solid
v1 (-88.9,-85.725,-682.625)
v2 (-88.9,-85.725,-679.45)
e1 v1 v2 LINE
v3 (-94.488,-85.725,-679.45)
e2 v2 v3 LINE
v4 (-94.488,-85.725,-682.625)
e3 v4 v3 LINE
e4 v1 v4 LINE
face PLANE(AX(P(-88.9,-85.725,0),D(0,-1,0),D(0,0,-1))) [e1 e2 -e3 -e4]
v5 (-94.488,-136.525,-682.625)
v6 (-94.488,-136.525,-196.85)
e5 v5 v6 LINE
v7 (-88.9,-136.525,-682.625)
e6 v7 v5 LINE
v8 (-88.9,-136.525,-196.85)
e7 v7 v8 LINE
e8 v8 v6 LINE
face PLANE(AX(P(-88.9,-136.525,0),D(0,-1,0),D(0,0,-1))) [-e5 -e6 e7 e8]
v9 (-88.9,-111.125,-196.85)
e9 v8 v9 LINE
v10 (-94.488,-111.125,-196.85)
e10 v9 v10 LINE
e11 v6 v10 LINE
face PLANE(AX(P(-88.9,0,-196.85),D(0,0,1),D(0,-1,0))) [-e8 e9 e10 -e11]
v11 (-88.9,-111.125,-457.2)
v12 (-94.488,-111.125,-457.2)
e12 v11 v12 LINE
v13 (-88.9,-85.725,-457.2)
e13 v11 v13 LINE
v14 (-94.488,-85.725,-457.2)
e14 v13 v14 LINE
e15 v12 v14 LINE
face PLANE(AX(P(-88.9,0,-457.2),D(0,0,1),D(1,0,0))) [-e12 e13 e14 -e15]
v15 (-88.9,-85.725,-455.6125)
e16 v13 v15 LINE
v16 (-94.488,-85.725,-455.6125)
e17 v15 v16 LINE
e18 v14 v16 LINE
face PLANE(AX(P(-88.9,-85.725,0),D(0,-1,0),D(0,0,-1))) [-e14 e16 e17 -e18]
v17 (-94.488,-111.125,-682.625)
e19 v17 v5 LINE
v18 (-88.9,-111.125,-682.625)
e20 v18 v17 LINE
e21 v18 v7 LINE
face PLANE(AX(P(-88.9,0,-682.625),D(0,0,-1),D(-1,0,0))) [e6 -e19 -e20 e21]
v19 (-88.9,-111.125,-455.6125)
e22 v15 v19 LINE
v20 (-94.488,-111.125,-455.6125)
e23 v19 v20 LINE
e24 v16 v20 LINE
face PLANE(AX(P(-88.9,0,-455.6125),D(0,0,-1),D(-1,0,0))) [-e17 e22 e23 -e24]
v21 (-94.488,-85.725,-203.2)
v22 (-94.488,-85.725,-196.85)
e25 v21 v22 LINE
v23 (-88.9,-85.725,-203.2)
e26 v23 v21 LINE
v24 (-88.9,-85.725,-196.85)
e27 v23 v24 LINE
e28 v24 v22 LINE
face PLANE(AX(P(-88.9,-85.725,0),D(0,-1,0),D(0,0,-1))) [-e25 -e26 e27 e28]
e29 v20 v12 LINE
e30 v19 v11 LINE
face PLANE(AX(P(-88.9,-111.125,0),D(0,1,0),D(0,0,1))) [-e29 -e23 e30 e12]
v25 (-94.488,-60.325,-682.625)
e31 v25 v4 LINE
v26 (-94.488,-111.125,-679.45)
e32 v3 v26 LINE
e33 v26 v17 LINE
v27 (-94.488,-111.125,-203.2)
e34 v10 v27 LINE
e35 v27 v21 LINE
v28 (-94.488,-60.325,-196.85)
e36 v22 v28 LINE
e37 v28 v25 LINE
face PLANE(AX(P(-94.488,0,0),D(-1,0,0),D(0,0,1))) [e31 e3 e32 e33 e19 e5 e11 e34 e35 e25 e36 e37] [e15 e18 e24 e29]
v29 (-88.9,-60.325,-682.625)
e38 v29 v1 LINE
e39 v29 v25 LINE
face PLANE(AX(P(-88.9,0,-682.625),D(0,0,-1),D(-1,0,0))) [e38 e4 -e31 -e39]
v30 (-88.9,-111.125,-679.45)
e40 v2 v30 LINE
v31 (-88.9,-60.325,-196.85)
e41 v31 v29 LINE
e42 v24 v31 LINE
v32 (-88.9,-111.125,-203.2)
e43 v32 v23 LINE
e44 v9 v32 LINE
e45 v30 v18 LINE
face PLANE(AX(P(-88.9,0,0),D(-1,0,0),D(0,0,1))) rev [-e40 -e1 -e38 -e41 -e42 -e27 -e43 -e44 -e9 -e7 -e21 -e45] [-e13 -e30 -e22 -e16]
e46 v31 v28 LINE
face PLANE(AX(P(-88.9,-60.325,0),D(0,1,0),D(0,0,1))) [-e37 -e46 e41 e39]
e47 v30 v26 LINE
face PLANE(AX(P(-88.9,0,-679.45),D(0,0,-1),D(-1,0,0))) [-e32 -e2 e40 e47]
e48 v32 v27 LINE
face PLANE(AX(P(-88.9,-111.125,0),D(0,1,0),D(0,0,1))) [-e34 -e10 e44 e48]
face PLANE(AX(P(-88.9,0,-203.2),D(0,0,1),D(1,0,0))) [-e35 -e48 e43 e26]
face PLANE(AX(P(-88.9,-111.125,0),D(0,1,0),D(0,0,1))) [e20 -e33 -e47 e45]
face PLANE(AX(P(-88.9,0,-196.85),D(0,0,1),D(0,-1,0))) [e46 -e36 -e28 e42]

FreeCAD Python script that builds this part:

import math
import FreeCAD as App
import Part
import Sketcher
from FreeCAD import Vector
Q = App.Units.Quantity


def add_polygon(sketch, points):
    """Adds a closed chain of lines whose ends are joined by coincident constraints."""
    first, n = sketch.GeometryCount, len(points)
    for a, b in zip(points, points[1:] + points[:1]):
        sketch.addGeometry(Part.LineSegment(App.Vector(*a, 0), App.Vector(*b, 0)), False)
    for i in range(n):
        sketch.addConstraint(Sketcher.Constraint("Coincident", first + i, 2, first + (i + 1) % n, 1))

doc = App.newDocument("Part")
body = doc.addObject("PartDesign::Body", "Body")

# Sketch on YZ plane
sketch1 = body.newObject("Sketcher::SketchObject", "Sketch")
sketch1.AttachmentSupport = (doc.getObject("YZ_Plane"), [""])
sketch1.MapMode = "FlatFace"
sketch1.AttachmentOffset = App.Placement(Vector(0, 0, -3.72 * 25.4), App.Rotation())
sketch1.addGeometry(Part.LineSegment(Vector(-136.5, -196.8, 0), Vector(-111.1, -196.8, 0)), False)  # 0
sketch1.addGeometry(Part.LineSegment(Vector(-111.1, -196.8, 0), Vector(-111.1, -203.2, 0)), False)  # 1
sketch1.addGeometry(Part.LineSegment(Vector(-111.1, -203.2, 0), Vector(-85.7, -203.2, 0)), False)  # 2
sketch1.addGeometry(Part.LineSegment(Vector(-85.7, -203.2, 0), Vector(-85.7, -196.8, 0)), False)  # 3
sketch1.addGeometry(Part.LineSegment(Vector(-85.7, -196.8, 0), Vector(-60.3, -196.8, 0)), False)  # 4
sketch1.addGeometry(Part.LineSegment(Vector(-60.3, -196.8, 0), Vector(-60.3, -682.6, 0)), False)  # 5
sketch1.addGeometry(Part.LineSegment(Vector(-60.3, -682.6, 0), Vector(-85.7, -682.6, 0)), False)  # 6
sketch1.addGeometry(Part.LineSegment(Vector(-85.7, -682.6, 0), Vector(-85.7, -679.5, 0)), False)  # 7
sketch1.addGeometry(Part.LineSegment(Vector(-85.7, -679.5, 0), Vector(-111.1, -679.5, 0)), False)  # 8
sketch1.addGeometry(Part.LineSegment(Vector(-111.1, -679.5, 0), Vector(-111.1, -682.6, 0)), False)  # 9
sketch1.addGeometry(Part.LineSegment(Vector(-111.1, -682.6, 0), Vector(-136.5, -682.6, 0)), False)  # 10
sketch1.addGeometry(Part.LineSegment(Vector(-136.5, -682.6, 0), Vector(-136.5, -679.5, 0)), False)  # 11
sketch1.addGeometry(Part.LineSegment(Vector(-136.5, -679.5, 0), Vector(-146.1, -679.5, 0)), False)  # 12
sketch1.addGeometry(Part.LineSegment(Vector(-146.1, -679.5, 0), Vector(-146.1, -684.2, 0)), False)  # 13
sketch1.addGeometry(Part.LineSegment(Vector(-146.1, -684.2, 0), Vector(-161.9, -684.2, 0)), False)  # 14
sketch1.addGeometry(Part.LineSegment(Vector(-161.9, -684.2, 0), Vector(-161.9, -679.5, 0)), False)  # 15
sketch1.addGeometry(Part.LineSegment(Vector(-161.9, -679.5, 0), Vector(-171.4, -679.5, 0)), False)  # 16
sketch1.addGeometry(Part.LineSegment(Vector(-171.4, -679.5, 0), Vector(-171.4, -665.4, 0)), False)  # 17
sketch1.addGeometry(Part.ArcOfCircle(Part.Circle(Vector(-165.1, -665.4, 0), Vector(0, 0, 1), 6.4), math.radians(150), math.radians(180)), False)  # 18
sketch1.addGeometry(Part.LineSegment(Vector(-170.6, -662.3, 0), Vector(-138.2, -606.2, 0)), False)  # 19
sketch1.addGeometry(Part.ArcOfCircle(Part.Circle(Vector(-149.2, -599.8, 0), Vector(0, 0, 1), 12.7), math.radians(-30), math.radians(0)), False)  # 20
sketch1.addGeometry(Part.LineSegment(Vector(-136.5, -599.8, 0), Vector(-136.5, -290.4, 0)), False)  # 21
sketch1.addGeometry(Part.ArcOfCircle(Part.Circle(Vector(-149.2, -290.4, 0), Vector(0, 0, 1), 12.7), math.radians(0), math.radians(40)), False)  # 22
sketch1.addGeometry(Part.LineSegment(Vector(-139.5, -282.2, 0), Vector(-184.1, -229.6, 0)), False)  # 23
sketch1.addGeometry(Part.ArcOfCircle(Part.Circle(Vector(-179.3, -225.5, 0), Vector(0, 0, 1), 6.3), math.radians(180), math.radians(220)), False)  # 24
sketch1.addGeometry(Part.LineSegment(Vector(-185.6, -225.5, 0), Vector(-185.6, -203.2, 0)), False)  # 25
sketch1.addGeometry(Part.LineSegment(Vector(-185.6, -203.2, 0), Vector(-168.3, -203.2, 0)), False)  # 26
sketch1.addGeometry(Part.LineSegment(Vector(-168.3, -203.2, 0), Vector(-168.3, -196.8, 0)), False)  # 27
sketch1.addGeometry(Part.LineSegment(Vector(-168.3, -196.8, 0), Vector(-149.2, -196.8, 0)), False)  # 28
sketch1.addGeometry(Part.LineSegment(Vector(-149.2, -196.8, 0), Vector(-149.2, -203.2, 0)), False)  # 29
sketch1.addGeometry(Part.LineSegment(Vector(-149.2, -203.2, 0), Vector(-136.5, -203.2, 0)), False)  # 30
sketch1.addGeometry(Part.LineSegment(Vector(-136.5, -203.2, 0), Vector(-136.5, -196.8, 0)), False)  # 31
add_polygon(sketch1, [(-111.1, -457.2), (-85.7, -457.2), (-85.7, -455.6), (-111.1, -455.6)])  # lines 32-35
sketch1.addConstraint([
    Sketcher.Constraint("Coincident", 0, 2, 1, 1),
    Sketcher.Constraint("Coincident", 1, 2, 2, 1),
    Sketcher.Constraint("Coincident", 2, 2, 3, 1),
    Sketcher.Constraint("Coincident", 3, 2, 4, 1),
    Sketcher.Constraint("Coincident", 4, 2, 5, 1),
    Sketcher.Constraint("Coincident", 5, 2, 6, 1),
    Sketcher.Constraint("Coincident", 6, 2, 7, 1),
    Sketcher.Constraint("Coincident", 7, 2, 8, 1),
    Sketcher.Constraint("Coincident", 8, 2, 9, 1),
    Sketcher.Constraint("Coincident", 9, 2, 10, 1),
    Sketcher.Constraint("Coincident", 10, 2, 11, 1),
    Sketcher.Constraint("Coincident", 11, 2, 12, 1),
    Sketcher.Constraint("Coincident", 12, 2, 13, 1),
    Sketcher.Constraint("Coincident", 13, 2, 14, 1),
    Sketcher.Constraint("Coincident", 14, 2, 15, 1),
    Sketcher.Constraint("Coincident", 15, 2, 16, 1),
    Sketcher.Constraint("Coincident", 16, 2, 17, 1),
    Sketcher.Constraint("Tangent", 17, 2, 18, 2),
    Sketcher.Constraint("Tangent", 18, 1, 19, 1),
    Sketcher.Constraint("Tangent", 19, 2, 20, 1),
    Sketcher.Constraint("Tangent", 20, 2, 21, 1),
    Sketcher.Constraint("Tangent", 21, 2, 22, 1),
    Sketcher.Constraint("Tangent", 22, 2, 23, 1),
    Sketcher.Constraint("Tangent", 23, 2, 24, 2),
    Sketcher.Constraint("Tangent", 24, 1, 25, 1),
    Sketcher.Constraint("Coincident", 25, 2, 26, 1),
    Sketcher.Constraint("Coincident", 26, 2, 27, 1),
    Sketcher.Constraint("Coincident", 27, 2, 28, 1),
    Sketcher.Constraint("Coincident", 28, 2, 29, 1),
    Sketcher.Constraint("Coincident", 29, 2, 30, 1),
    Sketcher.Constraint("Coincident", 30, 2, 31, 1),
    Sketcher.Constraint("Coincident", 31, 2, 0, 1),
    Sketcher.Constraint("Horizontal", 0),
    Sketcher.Constraint("Vertical", 1),
    Sketcher.Constraint("Horizontal", 2),
    Sketcher.Constraint("Vertical", 3),
    Sketcher.Constraint("Horizontal", 4),
    Sketcher.Constraint("Vertical", 5),
    Sketcher.Constraint("Horizontal", 6),
    Sketcher.Constraint("Vertical", 7),
    Sketcher.Constraint("Horizontal", 8),
    Sketcher.Constraint("Vertical", 9),
    Sketcher.Constraint("Horizontal", 10),
    Sketcher.Constraint("Vertical", 11),
    Sketcher.Constraint("Horizontal", 12),
    Sketcher.Constraint("Vertical", 13),
    Sketcher.Constraint("Horizontal", 14),
    Sketcher.Constraint("Vertical", 15),
    Sketcher.Constraint("Horizontal", 16),
    Sketcher.Constraint("Vertical", 17),
    Sketcher.Constraint("Vertical", 21),
    Sketcher.Constraint("Vertical", 25),
    Sketcher.Constraint("Horizontal", 26),
    Sketcher.Constraint("Vertical", 27),
    Sketcher.Constraint("Horizontal", 28),
    Sketcher.Constraint("Vertical", 29),
    Sketcher.Constraint("Horizontal", 30),
    Sketcher.Constraint("Vertical", 31),
    Sketcher.Constraint("Horizontal", 32),
    Sketcher.Constraint("Vertical", 33),
    Sketcher.Constraint("Horizontal", 34),
    Sketcher.Constraint("Vertical", 35),
    Sketcher.Constraint("Equal", 20, 22),
    Sketcher.Constraint("Equal", 18, 24),
    Sketcher.Constraint("Horizontal", 0, 2, 3, 2),
    Sketcher.Constraint("Horizontal", 6, 2, 9, 2),
    Sketcher.Constraint("Horizontal", 8, 2, 11, 2),
    Sketcher.Constraint("Horizontal", 12, 2, 15, 2),
    Sketcher.Constraint("Horizontal", 2, 2, 25, 2),
    Sketcher.Constraint("Horizontal", 4, 2, 27, 2),
    Sketcher.Constraint("Horizontal", 26, 2, 29, 2),
    Sketcher.Constraint("Vertical", 3, 2, 6, 2),
    Sketcher.Constraint("Vertical", 1, 2, 8, 2),
    Sketcher.Constraint("Vertical", 11, 2, 20, 2),
    Sketcher.Constraint("Vertical", 22, 3, 28, 2),
    Sketcher.Constraint("Vertical", 21, 2, 30, 2),
    Sketcher.Constraint("Vertical", 7, 2, 32, 2),
    Sketcher.Constraint("Vertical", 9, 2, 34, 2),
    Sketcher.Constraint("Equal", 0, 2),
    Sketcher.Constraint("Equal", 2, 4),
    Sketcher.Constraint("Equal", 12, 16),
    Sketcher.Constraint("Radius", 20, Q("0.5 in")),
    Sketcher.Constraint("DistanceX", 0, 1, 0, 2, Q("1 in")),
    Sketcher.Constraint("Radius", 18, Q("0.25 in")),
    Sketcher.Constraint("DistanceY", 1, 2, -1, 1, Q("8 in")),
    Sketcher.Constraint("DistanceY", 32, 2, -1, 1, Q("18 in")),
    Sketcher.Constraint("Angle", 19, Q("60 deg")),
    Sketcher.Constraint("DistanceX", 14, 2, 10, 2, Q("1 in")),
    Sketcher.Constraint("DistanceX", 28, 1, 28, 2, Q("0.75 in")),
    Sketcher.Constraint("DistanceY", 1, 2, 1, 1, Q("0.25 in")),
    Sketcher.Constraint("DistanceX", 18, 3, -1, 1, Q("6.5 in")),
    Sketcher.Constraint("DistanceX", 12, 2, 12, 1, Q("0.375 in")),
    Sketcher.Constraint("DistanceX", 26, 1, 26, 2, Q("0.683 in")),
    Sketcher.Constraint("DistanceY", 5, 2, 5, 1, Q("19.125 in")),
    Sketcher.Constraint("DistanceY", 7, 1, 7, 2, Q("0.125 in")),
    Sketcher.Constraint("DistanceY", 13, 2, 13, 1, Q("0.1875 in")),
    Sketcher.Constraint("DistanceY", 33, 1, 33, 2, Q("0.0625 in")),
    Sketcher.Constraint("DistanceY", 17, 1, 17, 2, 14.006648),
    Sketcher.Constraint("DistanceY", 22, 3, -1, 1, 290.406499),
    Sketcher.Constraint("Distance", 23, 68.97077),
])
pad1 = body.newObject("PartDesign::Pad", "Pad")
pad1.Profile = sketch1
pad1.Length = Q("0.22 in")

# Sketch on YZ plane
sketch2 = body.newObject("Sketcher::SketchObject", "Sketch001")
sketch2.AttachmentSupport = (doc.getObject("YZ_Plane"), [""])
sketch2.MapMode = "FlatFace"
sketch2.AttachmentOffset = App.Placement(Vector(0, 0, -3.5 * 25.4), App.Rotation())
add_polygon(sketch2, [(-137, -168), (-205, -168), (-205, -714), (-137, -714)])  # lines 0-3
sketch2.addConstraint([
    Sketcher.Constraint("Horizontal", 0),
    Sketcher.Constraint("Vertical", 1),
    Sketcher.Constraint("Horizontal", 2),
    Sketcher.Constraint("Vertical", 3),
    Sketcher.Constraint("DistanceX", 2, 2, -1, 1, Q("5.375 in")),
    Sketcher.Constraint("DistanceY", 1, 2, 1, 1, 545.63436),
    Sketcher.Constraint("DistanceX", 0, 2, 0, 1, 68.698433),
    Sketcher.Constraint("DistanceY", 0, 2, -1, 1, 168.316478),
])
pocket1 = body.newObject("PartDesign::Pocket", "Pocket")
pocket1.Profile = sketch2
pocket1.Length = Q("0.3 in")

doc.recompute()
